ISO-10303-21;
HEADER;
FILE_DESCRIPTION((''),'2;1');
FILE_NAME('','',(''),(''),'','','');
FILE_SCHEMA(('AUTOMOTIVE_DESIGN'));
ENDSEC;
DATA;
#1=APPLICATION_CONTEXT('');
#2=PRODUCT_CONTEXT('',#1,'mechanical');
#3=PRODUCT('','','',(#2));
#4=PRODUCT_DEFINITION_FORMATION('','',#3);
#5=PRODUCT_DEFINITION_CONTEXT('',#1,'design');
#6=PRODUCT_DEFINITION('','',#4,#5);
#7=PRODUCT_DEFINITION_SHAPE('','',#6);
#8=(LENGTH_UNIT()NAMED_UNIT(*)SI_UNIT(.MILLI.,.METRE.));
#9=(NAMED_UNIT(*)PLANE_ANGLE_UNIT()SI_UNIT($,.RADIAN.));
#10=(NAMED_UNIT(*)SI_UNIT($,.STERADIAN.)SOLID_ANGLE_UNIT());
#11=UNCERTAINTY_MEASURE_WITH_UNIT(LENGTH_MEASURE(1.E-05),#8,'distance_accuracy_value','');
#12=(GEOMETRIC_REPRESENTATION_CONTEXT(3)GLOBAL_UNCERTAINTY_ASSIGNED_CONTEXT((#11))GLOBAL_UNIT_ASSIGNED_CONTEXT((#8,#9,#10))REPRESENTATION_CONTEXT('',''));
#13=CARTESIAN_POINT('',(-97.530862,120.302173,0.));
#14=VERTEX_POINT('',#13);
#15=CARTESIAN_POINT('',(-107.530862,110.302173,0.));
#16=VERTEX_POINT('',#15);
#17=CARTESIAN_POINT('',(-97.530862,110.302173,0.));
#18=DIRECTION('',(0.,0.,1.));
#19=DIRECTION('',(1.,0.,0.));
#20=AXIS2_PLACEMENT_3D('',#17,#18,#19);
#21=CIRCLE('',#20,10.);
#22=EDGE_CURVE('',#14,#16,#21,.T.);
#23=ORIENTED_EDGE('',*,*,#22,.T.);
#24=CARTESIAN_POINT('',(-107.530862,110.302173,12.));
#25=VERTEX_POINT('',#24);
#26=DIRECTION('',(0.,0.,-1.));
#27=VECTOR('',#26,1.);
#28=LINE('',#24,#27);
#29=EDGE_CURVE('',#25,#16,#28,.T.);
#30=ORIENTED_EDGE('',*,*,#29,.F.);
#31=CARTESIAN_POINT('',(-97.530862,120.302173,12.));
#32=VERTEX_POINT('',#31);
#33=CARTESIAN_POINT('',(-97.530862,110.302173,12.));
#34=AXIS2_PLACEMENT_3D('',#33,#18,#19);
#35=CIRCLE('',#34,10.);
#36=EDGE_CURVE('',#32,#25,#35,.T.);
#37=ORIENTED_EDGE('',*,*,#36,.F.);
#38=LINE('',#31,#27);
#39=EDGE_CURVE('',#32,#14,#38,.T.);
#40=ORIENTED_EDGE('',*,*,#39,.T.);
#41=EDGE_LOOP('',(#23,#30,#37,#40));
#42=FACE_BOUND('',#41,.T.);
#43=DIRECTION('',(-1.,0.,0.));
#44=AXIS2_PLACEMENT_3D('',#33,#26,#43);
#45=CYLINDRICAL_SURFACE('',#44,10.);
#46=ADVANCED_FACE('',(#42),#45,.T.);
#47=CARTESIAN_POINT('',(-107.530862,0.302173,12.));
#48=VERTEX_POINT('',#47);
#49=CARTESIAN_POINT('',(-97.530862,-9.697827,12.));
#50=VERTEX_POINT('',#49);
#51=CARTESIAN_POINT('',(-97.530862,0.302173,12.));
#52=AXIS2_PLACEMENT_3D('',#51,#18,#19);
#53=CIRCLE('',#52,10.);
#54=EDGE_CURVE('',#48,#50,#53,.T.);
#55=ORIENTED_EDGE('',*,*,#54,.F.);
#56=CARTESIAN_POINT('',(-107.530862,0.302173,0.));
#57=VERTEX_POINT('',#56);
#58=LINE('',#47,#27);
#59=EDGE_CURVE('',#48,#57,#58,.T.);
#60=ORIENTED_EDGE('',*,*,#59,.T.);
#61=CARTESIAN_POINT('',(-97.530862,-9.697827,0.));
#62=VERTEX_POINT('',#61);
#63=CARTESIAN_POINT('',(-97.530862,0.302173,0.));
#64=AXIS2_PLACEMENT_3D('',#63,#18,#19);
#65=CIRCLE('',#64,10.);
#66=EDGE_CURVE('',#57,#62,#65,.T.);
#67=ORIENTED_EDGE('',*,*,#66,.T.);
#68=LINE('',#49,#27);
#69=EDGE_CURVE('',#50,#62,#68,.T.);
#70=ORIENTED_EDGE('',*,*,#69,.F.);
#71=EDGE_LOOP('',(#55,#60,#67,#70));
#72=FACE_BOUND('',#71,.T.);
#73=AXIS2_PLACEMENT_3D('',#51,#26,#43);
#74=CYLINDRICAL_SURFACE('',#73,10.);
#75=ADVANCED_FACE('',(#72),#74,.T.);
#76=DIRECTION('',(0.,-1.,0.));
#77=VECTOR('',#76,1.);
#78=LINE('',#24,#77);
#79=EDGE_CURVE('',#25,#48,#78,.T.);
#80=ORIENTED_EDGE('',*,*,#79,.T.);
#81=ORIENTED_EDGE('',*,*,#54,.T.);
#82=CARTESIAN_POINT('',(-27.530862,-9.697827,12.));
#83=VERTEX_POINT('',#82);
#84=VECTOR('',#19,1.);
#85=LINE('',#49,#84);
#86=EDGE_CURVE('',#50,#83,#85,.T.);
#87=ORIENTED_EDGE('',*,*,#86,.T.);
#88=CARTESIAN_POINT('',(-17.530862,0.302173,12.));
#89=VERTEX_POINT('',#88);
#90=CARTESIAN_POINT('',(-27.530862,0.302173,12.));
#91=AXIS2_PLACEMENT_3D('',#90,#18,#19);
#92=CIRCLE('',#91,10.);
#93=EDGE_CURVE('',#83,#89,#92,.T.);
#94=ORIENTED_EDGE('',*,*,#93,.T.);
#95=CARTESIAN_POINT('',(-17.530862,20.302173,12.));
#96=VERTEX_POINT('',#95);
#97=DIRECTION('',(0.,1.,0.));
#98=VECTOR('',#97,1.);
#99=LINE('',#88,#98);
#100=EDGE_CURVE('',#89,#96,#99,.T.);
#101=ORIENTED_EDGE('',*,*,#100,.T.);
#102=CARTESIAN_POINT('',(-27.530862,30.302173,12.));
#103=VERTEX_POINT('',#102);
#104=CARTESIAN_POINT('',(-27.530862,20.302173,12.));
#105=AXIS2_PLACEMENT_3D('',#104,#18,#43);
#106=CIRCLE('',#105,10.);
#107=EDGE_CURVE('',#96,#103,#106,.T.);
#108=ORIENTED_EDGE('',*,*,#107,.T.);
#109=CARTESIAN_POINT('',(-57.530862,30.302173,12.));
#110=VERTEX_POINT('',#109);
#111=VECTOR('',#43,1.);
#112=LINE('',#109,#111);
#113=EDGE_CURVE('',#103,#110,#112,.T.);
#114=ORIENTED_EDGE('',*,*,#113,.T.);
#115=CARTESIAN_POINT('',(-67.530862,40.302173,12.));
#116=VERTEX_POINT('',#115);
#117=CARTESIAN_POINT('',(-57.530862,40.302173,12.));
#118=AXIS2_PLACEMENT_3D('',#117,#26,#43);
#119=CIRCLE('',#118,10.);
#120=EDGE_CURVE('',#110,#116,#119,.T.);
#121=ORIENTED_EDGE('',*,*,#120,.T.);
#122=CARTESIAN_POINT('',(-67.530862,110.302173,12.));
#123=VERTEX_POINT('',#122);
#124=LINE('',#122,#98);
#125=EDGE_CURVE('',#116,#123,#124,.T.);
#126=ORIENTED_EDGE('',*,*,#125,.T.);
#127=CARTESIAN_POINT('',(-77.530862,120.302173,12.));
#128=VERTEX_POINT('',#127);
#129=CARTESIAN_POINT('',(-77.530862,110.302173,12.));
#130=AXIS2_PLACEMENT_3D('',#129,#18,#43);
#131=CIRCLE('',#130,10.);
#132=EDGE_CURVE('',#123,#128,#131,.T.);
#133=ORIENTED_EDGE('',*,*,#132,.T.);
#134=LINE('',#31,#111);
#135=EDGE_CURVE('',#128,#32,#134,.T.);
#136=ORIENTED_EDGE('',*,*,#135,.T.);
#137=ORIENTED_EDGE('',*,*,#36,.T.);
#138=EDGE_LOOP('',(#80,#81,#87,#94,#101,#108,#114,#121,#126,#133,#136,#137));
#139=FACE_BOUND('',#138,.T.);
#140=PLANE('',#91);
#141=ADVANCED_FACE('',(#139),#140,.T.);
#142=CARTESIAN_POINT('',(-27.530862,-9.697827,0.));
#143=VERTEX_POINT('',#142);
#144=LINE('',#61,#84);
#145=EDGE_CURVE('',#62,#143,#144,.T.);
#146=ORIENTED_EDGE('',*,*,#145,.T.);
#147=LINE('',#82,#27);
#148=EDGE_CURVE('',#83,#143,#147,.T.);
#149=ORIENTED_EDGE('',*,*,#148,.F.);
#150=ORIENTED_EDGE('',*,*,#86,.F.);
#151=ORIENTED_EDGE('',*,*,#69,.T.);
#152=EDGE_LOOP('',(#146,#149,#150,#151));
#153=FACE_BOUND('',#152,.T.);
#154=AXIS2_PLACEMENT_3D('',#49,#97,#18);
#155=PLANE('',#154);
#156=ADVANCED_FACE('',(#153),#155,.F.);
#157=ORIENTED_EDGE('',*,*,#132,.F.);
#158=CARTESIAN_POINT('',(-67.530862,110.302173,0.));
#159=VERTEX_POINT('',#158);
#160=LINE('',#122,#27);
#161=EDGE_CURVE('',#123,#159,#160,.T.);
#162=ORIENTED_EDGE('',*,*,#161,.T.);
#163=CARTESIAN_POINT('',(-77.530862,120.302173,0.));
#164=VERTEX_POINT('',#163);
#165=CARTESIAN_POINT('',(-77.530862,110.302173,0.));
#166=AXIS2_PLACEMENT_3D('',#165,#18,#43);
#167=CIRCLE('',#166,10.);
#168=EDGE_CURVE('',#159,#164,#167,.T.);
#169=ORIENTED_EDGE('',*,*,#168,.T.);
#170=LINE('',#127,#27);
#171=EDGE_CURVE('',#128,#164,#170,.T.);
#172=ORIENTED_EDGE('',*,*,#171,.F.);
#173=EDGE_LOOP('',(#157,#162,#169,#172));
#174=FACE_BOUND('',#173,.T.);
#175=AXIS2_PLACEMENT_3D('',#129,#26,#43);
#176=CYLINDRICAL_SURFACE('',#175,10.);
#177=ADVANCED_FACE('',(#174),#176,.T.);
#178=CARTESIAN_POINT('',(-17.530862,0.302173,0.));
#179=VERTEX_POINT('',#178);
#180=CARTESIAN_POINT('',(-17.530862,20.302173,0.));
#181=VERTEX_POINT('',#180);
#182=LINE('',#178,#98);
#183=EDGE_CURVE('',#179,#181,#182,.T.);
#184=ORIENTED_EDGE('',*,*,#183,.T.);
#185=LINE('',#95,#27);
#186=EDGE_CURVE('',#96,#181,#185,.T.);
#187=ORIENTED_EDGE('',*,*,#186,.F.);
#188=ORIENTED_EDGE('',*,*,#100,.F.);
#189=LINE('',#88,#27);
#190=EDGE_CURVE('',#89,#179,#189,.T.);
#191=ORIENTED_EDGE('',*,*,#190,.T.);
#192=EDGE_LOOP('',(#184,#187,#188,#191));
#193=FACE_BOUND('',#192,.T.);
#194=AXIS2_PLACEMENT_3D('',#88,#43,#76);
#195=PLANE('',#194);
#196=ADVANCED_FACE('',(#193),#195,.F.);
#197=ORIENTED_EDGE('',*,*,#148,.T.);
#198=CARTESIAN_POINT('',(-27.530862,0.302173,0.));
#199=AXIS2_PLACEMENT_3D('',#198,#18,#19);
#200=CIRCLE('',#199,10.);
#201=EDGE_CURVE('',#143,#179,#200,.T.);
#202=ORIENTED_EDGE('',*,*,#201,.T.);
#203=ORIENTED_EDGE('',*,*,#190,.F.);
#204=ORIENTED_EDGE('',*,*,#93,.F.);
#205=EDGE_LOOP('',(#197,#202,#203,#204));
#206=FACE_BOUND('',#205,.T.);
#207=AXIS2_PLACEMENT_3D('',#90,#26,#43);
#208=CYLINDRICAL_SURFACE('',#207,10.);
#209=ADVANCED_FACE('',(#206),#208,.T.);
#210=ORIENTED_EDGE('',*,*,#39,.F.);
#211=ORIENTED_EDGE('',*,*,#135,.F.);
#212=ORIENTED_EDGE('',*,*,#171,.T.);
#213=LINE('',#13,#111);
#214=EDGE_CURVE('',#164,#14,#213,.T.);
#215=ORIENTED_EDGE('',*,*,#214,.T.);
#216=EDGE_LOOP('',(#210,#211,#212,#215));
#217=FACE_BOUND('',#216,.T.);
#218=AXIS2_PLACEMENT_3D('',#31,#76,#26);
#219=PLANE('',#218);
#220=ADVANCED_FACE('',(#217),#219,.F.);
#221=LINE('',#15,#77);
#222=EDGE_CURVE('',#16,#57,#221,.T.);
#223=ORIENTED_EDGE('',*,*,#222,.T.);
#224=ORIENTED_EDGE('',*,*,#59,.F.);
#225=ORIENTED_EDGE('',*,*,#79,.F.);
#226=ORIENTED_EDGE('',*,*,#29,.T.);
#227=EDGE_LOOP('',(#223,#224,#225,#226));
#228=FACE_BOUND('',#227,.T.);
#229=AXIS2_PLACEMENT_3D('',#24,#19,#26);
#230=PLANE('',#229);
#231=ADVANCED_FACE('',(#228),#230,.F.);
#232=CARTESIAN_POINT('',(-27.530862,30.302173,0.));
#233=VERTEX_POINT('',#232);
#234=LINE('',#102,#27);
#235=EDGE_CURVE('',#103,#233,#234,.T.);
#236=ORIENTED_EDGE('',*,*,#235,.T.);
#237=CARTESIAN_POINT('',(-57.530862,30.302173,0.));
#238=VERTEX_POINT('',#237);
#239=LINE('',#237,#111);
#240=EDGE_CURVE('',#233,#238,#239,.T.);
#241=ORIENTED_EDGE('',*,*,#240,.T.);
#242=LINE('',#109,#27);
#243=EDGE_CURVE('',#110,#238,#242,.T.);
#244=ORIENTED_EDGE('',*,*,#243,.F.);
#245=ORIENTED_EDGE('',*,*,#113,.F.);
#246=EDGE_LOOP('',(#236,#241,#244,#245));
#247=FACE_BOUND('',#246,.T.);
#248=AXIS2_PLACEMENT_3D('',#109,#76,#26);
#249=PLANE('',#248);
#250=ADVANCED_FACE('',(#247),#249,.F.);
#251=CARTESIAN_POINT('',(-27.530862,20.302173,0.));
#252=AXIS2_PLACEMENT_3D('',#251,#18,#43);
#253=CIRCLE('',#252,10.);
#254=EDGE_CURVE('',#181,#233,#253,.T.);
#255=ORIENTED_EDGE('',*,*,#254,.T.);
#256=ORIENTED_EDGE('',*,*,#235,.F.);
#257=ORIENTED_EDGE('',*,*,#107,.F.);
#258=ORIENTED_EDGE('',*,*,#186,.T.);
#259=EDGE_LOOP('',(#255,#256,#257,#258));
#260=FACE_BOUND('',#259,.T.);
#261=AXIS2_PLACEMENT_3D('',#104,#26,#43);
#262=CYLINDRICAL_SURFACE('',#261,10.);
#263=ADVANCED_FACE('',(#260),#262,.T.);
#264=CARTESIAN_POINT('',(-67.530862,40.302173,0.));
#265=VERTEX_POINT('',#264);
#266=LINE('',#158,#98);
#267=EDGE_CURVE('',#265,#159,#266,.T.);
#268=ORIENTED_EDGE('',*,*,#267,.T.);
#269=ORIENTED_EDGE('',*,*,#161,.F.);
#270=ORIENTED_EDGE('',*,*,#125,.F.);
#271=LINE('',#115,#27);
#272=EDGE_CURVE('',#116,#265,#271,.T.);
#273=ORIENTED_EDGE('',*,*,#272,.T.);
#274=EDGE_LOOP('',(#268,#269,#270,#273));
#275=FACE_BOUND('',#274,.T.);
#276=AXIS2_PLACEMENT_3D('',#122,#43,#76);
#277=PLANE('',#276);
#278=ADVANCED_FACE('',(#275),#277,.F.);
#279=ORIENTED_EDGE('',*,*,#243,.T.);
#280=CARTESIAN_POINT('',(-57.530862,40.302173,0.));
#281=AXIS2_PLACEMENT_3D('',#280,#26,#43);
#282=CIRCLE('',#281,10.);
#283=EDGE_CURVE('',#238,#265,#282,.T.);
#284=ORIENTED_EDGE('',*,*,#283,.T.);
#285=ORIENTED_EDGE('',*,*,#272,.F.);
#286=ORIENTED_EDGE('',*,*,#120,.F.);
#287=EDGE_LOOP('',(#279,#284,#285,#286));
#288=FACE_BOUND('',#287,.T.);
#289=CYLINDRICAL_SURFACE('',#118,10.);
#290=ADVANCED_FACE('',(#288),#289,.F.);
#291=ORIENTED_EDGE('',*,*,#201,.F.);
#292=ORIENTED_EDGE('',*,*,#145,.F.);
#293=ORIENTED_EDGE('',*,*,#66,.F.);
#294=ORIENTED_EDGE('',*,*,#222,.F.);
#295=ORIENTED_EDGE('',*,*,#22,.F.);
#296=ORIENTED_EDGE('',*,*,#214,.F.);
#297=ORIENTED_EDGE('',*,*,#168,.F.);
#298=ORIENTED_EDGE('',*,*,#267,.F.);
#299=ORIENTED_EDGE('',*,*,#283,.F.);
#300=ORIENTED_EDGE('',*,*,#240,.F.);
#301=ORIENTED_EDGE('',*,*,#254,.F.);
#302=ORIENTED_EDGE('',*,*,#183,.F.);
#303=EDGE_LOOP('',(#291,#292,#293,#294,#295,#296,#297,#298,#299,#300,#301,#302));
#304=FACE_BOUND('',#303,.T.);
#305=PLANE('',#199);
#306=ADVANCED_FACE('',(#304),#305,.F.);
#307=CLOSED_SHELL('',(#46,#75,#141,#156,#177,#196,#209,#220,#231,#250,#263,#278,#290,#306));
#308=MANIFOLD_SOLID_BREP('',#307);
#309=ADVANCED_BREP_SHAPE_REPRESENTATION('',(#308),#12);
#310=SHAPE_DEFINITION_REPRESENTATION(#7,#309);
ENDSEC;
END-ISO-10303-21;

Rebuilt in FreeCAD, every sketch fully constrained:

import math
import FreeCAD as App
import Part
import Sketcher

doc = App.newDocument("Part")
body = doc.addObject("PartDesign::Body", "Body")

sketch1 = doc.addObject("Sketcher::SketchObject", "Sketch")
body.addObject(sketch1)
sketch1.AttachmentSupport = (doc.XY_Plane, [""])
sketch1.MapMode = "FlatFace"
sketch1.addGeometry(Part.LineSegment(App.Vector(-108, 110, 0), App.Vector(-108, 0, 0)), False)
sketch1.addGeometry(Part.ArcOfCircle(Part.Circle(App.Vector(-98, 0, 0), App.Vector(0, 0, 1), 10), math.radians(-180), math.radians(-90)), False)
sketch1.addGeometry(Part.LineSegment(App.Vector(-98, -10, 0), App.Vector(-28, -10, 0)), False)
sketch1.addGeometry(Part.ArcOfCircle(Part.Circle(App.Vector(-28, 0, 0), App.Vector(0, 0, 1), 10), math.radians(-90), math.radians(0)), False)
sketch1.addGeometry(Part.LineSegment(App.Vector(-18, 0, 0), App.Vector(-18, 20, 0)), False)
sketch1.addGeometry(Part.ArcOfCircle(Part.Circle(App.Vector(-28, 20, 0), App.Vector(0, 0, 1), 10), math.radians(0), math.radians(90)), False)
sketch1.addGeometry(Part.LineSegment(App.Vector(-28, 30, 0), App.Vector(-58, 30, 0)), False)
sketch1.addGeometry(Part.ArcOfCircle(Part.Circle(App.Vector(-58, 40, 0), App.Vector(0, 0, 1), 10), math.radians(-180), math.radians(-90)), False)
sketch1.addGeometry(Part.LineSegment(App.Vector(-68, 40, 0), App.Vector(-68, 110, 0)), False)
sketch1.addGeometry(Part.ArcOfCircle(Part.Circle(App.Vector(-78, 110, 0), App.Vector(0, 0, 1), 10), math.radians(0), math.radians(90)), False)
sketch1.addGeometry(Part.LineSegment(App.Vector(-78, 120, 0), App.Vector(-98, 120, 0)), False)
sketch1.addGeometry(Part.ArcOfCircle(Part.Circle(App.Vector(-98, 110, 0), App.Vector(0, 0, 1), 10), math.radians(90), math.radians(180)), False)
sketch1.addConstraint(Sketcher.Constraint("Tangent", 0, 2, 1, 1))
sketch1.addConstraint(Sketcher.Constraint("Tangent", 1, 2, 2, 1))
sketch1.addConstraint(Sketcher.Constraint("Tangent", 2, 2, 3, 1))
sketch1.addConstraint(Sketcher.Constraint("Tangent", 3, 2, 4, 1))
sketch1.addConstraint(Sketcher.Constraint("Tangent", 4, 2, 5, 1))
sketch1.addConstraint(Sketcher.Constraint("Tangent", 5, 2, 6, 1))
sketch1.addConstraint(Sketcher.Constraint("Tangent", 6, 2, 7, 2))
sketch1.addConstraint(Sketcher.Constraint("Tangent", 7, 1, 8, 1))
sketch1.addConstraint(Sketcher.Constraint("Tangent", 8, 2, 9, 1))
sketch1.addConstraint(Sketcher.Constraint("Tangent", 9, 2, 10, 1))
sketch1.addConstraint(Sketcher.Constraint("Tangent", 10, 2, 11, 1))
sketch1.addConstraint(Sketcher.Constraint("Tangent", 11, 2, 0, 1))
sketch1.addConstraint(Sketcher.Constraint("Vertical", 0))
sketch1.addConstraint(Sketcher.Constraint("Horizontal", 2))
sketch1.addConstraint(Sketcher.Constraint("Vertical", 4))
sketch1.addConstraint(Sketcher.Constraint("Horizontal", 6))
sketch1.addConstraint(Sketcher.Constraint("Vertical", 8))
sketch1.addConstraint(Sketcher.Constraint("Horizontal", 10))
sketch1.addConstraint(Sketcher.Constraint("Equal", 1, 3))
sketch1.addConstraint(Sketcher.Constraint("Equal", 3, 5))
sketch1.addConstraint(Sketcher.Constraint("Equal", 5, 7))
sketch1.addConstraint(Sketcher.Constraint("Equal", 7, 9))
sketch1.addConstraint(Sketcher.Constraint("Equal", 9, 11))
sketch1.addConstraint(Sketcher.Constraint("Equal", 10, 4))
sketch1.addConstraint(Sketcher.Constraint("Equal", 2, 8))
sketch1.addConstraint(Sketcher.Constraint("Radius", 1, 10.0))
sketch1.addConstraint(Sketcher.Constraint("DistanceX", 2, 1, 2, 2, 70.0))
sketch1.addConstraint(Sketcher.Constraint("DistanceX", 6, 2, 6, 1, 30.0))
sketch1.addConstraint(Sketcher.Constraint("DistanceX", 1, 3, -1, 1, 97.530862))
sketch1.addConstraint(Sketcher.Constraint("DistanceY", -1, 1, 1, 3, 0.302173))
pad1 = doc.addObject("PartDesign::Pad", "Pad")
body.addObject(pad1)
pad1.Profile = sketch1
pad1.Length = 12

doc.recompute()
